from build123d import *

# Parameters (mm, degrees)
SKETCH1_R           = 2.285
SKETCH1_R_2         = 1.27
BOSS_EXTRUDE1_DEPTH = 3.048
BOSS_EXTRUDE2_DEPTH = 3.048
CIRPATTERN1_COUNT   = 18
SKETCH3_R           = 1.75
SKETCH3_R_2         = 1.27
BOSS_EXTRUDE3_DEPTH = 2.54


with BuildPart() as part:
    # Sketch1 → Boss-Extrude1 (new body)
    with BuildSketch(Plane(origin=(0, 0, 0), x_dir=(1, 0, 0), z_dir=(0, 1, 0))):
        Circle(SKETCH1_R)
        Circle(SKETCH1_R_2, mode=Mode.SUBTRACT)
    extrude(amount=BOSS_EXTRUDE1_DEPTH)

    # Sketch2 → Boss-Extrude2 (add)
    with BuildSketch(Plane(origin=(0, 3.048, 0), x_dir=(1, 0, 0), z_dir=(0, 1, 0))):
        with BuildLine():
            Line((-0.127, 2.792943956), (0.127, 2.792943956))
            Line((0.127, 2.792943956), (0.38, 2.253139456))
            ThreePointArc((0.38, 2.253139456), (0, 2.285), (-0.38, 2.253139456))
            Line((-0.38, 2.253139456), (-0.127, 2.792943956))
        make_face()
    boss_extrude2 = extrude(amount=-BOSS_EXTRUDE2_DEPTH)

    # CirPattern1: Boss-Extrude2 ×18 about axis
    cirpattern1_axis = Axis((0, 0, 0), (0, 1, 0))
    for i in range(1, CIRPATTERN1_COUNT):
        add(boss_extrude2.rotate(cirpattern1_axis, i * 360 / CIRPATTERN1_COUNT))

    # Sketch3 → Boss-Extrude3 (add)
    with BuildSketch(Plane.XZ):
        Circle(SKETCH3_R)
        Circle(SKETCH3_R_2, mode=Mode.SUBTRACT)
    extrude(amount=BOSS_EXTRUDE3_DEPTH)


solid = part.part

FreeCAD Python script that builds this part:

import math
import FreeCAD as App
import Part
import Sketcher

V = App.Vector
Q = App.Units.Quantity

doc = App.newDocument("Part")
params = doc.addObject("Spreadsheet::Sheet", "Params")
for row, (alias, value) in enumerate([
    ("sketch1_diameter", "0.1 in"),
    ("pad1_length", "0.12 in"),
    ("sketch2_width", "0.01 in"),
    ("pad2_length", "0.12 in"),
    ("sketch3_diameter", "0.1 in"),
    ("pad3_length", "0.1 in"),
], start=1):
    params.set(f"A{row}", alias)
    params.set(f"B{row}", "=" + value)
    params.setAlias(f"B{row}", alias)

body = doc.addObject("PartDesign::Body", "Body")

sketch1 = body.newObject("Sketcher::SketchObject", "Sketch")
sketch1.AttachmentSupport = (doc.getObject("XZ_Plane"), [""])
sketch1.MapMode = "FlatFace"
sketch1.addGeometry([
    Part.Circle(V(0, 0, 0), V(0, 0, 1), 2.3),
    Part.Circle(V(0, 0, 0), V(0, 0, 1), 1.3),
], False)
sketch1.addConstraint([
    Sketcher.Constraint("Coincident", 0, 3, -1, 1),
    Sketcher.Constraint("Coincident", 1, 3, -1, 1),
    Sketcher.Constraint("Diameter", 1, Q("0.1 in")),
    Sketcher.Constraint("Diameter", 0, 4.57),
])
sketch1.setExpression("Constraints[2]", "Params.sketch1_diameter")
pad1 = body.newObject("PartDesign::Pad", "Pad")
pad1.Profile = sketch1
pad1.setExpression("Length", "Params.pad1_length")
pad1.Reversed = True

sketch2 = body.newObject("Sketcher::SketchObject", "Sketch001")
sketch2.AttachmentSupport = (doc.getObject("XZ_Plane"), [""])
sketch2.MapMode = "FlatFace"
sketch2.AttachmentOffset = App.Placement(V(0, 0, -0.12 * 25.4), App.Rotation())
sketch2.addGeometry([
    Part.LineSegment(V(0.13, -2.79, 0), V(-0.13, -2.79, 0)),
    Part.LineSegment(V(-0.13, -2.79, 0), V(-0.38, -2.25, 0)),
    Part.ArcOfCircle(Part.Circle(V(0, 0, 0), V(0, 0, 1), 2.28), math.radians(-99.59), math.radians(-80.41)),
    Part.LineSegment(V(0.38, -2.25, 0), V(0.13, -2.79, 0)),
], False)
sketch2.addConstraint([
    Sketcher.Constraint("Coincident", 0, 2, 1, 1),
    Sketcher.Constraint("Coincident", 1, 2, 2, 1),
    Sketcher.Constraint("Coincident", 2, 2, 3, 1),
    Sketcher.Constraint("Coincident", 3, 2, 0, 1),
    Sketcher.Constraint("Horizontal", 0),
    Sketcher.Constraint("Symmetric", 1, 2, 2, 2, -2),
    Sketcher.Constraint("Equal", 1, 3),
    Sketcher.Constraint("DistanceX", 0, 2, 0, 1, Q("0.01 in")),
    Sketcher.Constraint("Radius", 2, 2.282056),
    Sketcher.Constraint("DistanceX", 1, 2, -1, 1, 0.38),
    Sketcher.Constraint("DistanceY", 0, 2, 2, 3, 2.79),
    Sketcher.Constraint("DistanceY", 1, 2, -1, 1, 2.253139),
])
sketch2.setExpression("Constraints[7]", "Params.sketch2_width")
pad2 = body.newObject("PartDesign::Pad", "Pad001")
pad2.Profile = sketch2
pad2.setExpression("Length", "Params.pad2_length")
doc.recompute()

polarpattern = body.newObject("PartDesign::PolarPattern", "PolarPattern")
polarpattern.Originals = [pad2]
polarpattern.Axis = (doc.getObject("Y_Axis"), [""])
polarpattern.Angle = 360
polarpattern.Occurrences = 18
body.Tip = polarpattern

sketch3 = body.newObject("Sketcher::SketchObject", "Sketch002")
sketch3.AttachmentSupport = (doc.getObject("XZ_Plane"), [""])
sketch3.MapMode = "FlatFace"
sketch3.addGeometry([
    Part.Circle(V(0, 0, 0), V(0, 0, 1), 1.8),
    Part.Circle(V(0, 0, 0), V(0, 0, 1), 1.3),
], False)
sketch3.addConstraint([
    Sketcher.Constraint("Coincident", 0, 3, -1, 1),
    Sketcher.Constraint("Coincident", 1, 3, -1, 1),
    Sketcher.Constraint("Diameter", 1, Q("0.1 in")),
    Sketcher.Constraint("Diameter", 0, 3.5),
])
sketch3.setExpression("Constraints[2]", "Params.sketch3_diameter")
pad3 = body.newObject("PartDesign::Pad", "Pad002")
pad3.Profile = sketch3
pad3.setExpression("Length", "Params.pad3_length")

doc.recompute()
